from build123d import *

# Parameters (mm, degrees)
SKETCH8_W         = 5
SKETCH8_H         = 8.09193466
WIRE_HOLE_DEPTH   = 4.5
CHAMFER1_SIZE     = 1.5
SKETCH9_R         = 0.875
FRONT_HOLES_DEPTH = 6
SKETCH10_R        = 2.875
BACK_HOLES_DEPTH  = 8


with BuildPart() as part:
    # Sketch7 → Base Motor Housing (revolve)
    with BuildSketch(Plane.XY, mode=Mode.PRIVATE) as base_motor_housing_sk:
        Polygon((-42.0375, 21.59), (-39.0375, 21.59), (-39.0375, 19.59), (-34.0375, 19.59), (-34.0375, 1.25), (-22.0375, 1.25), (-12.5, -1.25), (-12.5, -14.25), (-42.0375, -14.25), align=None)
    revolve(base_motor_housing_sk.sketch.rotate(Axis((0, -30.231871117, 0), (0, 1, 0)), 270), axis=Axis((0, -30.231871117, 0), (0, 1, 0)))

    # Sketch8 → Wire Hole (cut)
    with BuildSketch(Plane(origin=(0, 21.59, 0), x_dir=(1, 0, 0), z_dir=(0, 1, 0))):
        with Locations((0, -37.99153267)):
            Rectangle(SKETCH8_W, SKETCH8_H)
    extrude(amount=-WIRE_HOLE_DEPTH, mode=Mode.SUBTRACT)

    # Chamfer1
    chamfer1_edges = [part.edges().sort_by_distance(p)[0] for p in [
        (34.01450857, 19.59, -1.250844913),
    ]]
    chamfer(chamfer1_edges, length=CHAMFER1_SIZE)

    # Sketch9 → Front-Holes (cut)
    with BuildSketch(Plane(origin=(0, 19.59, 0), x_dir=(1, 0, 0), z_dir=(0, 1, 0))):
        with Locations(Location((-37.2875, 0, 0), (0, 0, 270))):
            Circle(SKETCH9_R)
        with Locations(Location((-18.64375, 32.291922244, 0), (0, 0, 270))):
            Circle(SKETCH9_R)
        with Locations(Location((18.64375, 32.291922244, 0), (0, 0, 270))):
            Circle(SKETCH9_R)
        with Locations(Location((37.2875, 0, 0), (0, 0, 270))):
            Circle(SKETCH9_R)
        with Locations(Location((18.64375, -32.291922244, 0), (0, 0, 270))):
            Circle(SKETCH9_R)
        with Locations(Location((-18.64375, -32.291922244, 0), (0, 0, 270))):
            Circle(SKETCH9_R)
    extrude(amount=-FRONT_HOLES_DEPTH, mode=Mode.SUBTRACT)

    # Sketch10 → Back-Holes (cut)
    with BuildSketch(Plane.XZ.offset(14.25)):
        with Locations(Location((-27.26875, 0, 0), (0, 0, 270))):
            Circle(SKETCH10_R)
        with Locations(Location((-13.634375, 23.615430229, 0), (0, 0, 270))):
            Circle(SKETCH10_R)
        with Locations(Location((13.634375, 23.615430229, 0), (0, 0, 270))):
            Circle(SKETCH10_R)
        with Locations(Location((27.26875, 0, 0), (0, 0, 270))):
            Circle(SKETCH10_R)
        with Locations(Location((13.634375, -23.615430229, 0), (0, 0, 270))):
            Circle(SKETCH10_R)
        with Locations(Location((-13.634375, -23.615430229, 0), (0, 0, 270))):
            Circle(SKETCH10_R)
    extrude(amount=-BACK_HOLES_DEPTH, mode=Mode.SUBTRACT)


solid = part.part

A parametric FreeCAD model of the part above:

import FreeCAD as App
import Part
import Sketcher
from FreeCAD import Vector


def edges_at(feature, points):
    """Names of the edges that pass closest to the given points."""
    edges = feature.Shape.Edges
    near = lambda p: min(range(len(edges)), key=lambda i: edges[i].distToShape(Part.Vertex(*p))[0])
    return sorted({f"Edge{near(p) + 1}" for p in points})


def add_polygon(sketch, points):
    """Adds a closed chain of lines whose ends are joined by coincident constraints."""
    first, n = sketch.GeometryCount, len(points)
    for a, b in zip(points, points[1:] + points[:1]):
        sketch.addGeometry(Part.LineSegment(App.Vector(*a, 0), App.Vector(*b, 0)), False)
    for i in range(n):
        sketch.addConstraint(Sketcher.Constraint("Coincident", first + i, 2, first + (i + 1) % n, 1))

doc = App.newDocument("Part")
body = doc.addObject("PartDesign::Body", "Body")

sketch1 = body.newObject("Sketcher::SketchObject", "Sketch")
sketch1.AttachmentSupport = (doc.getObject("XY_Plane"), [""])
sketch1.MapMode = "FlatFace"
add_polygon(sketch1, [(-39.0375, 21.59), (-42.0375, 21.59), (-42.0375, -14.25), (-12.5, -14.25), (-12.5, -1.25), (-22.0375, 1.25), (-34.0375, 1.25), (-34.0375, 19.59), (-39.0375, 19.59)])
sketch1.addConstraint([
    Sketcher.Constraint("Horizontal", 0),
    Sketcher.Constraint("Vertical", 1),
    Sketcher.Constraint("Horizontal", 2),
    Sketcher.Constraint("Vertical", 3),
    Sketcher.Constraint("Horizontal", 5),
    Sketcher.Constraint("Vertical", 6),
    Sketcher.Constraint("Horizontal", 7),
    Sketcher.Constraint("Vertical", 8),
    Sketcher.Constraint("DistanceX", 0, 2, 0, 1, 3.0),
    Sketcher.Constraint("DistanceX", 5, 2, 5, 1, 12.0),
    Sketcher.Constraint("DistanceX", 7, 2, 7, 1, 5.0),
    Sketcher.Constraint("DistanceY", 3, 1, 3, 2, 13.0),
    Sketcher.Constraint("DistanceY", 8, 1, 8, 2, 2.0),
    Sketcher.Constraint("DistanceY", 1, 2, 1, 1, 35.84),
    Sketcher.Constraint("DistanceY", 6, 1, 6, 2, 18.34),
    Sketcher.Constraint("DistanceX", 2, 2, -1, 1, 12.5),
    Sketcher.Constraint("DistanceY", -1, 1, 0, 2, 21.59),
    Sketcher.Constraint("DistanceX", 2, 1, 2, 2, 29.5375),
])
revolution = body.newObject("PartDesign::Revolution", "Revolution")
revolution.Profile = sketch1
revolution.ReferenceAxis = (sketch1, ["V_Axis"])
revolution.Angle = 360

sketch2 = body.newObject("Sketcher::SketchObject", "Sketch001")
sketch2.AttachmentSupport = (doc.getObject("XZ_Plane"), [""])
sketch2.MapMode = "FlatFace"
sketch2.AttachmentOffset = App.Placement(Vector(0, 0, -21.59), App.Rotation())
add_polygon(sketch2, [(-2.5, 33.945565), (-2.5, 42.0375), (2.5, 42.0375), (2.5, 33.945565)])
sketch2.addConstraint([
    Sketcher.Constraint("Vertical", 0),
    Sketcher.Constraint("Horizontal", 1),
    Sketcher.Constraint("Vertical", 2),
    Sketcher.Constraint("Horizontal", 3),
    Sketcher.Constraint("DistanceX", 1, 1, 1, 2, 5.0),
    Sketcher.Constraint("DistanceX", 0, 2, -1, 1, 2.5),
    Sketcher.Constraint("DistanceY", -1, 1, 0, 2, 42.0375),
    Sketcher.Constraint("DistanceY", 0, 1, 0, 2, 8.091935),
])
pocket1 = body.newObject("PartDesign::Pocket", "Pocket")
pocket1.Profile = sketch2
pocket1.Length = 4.5
pocket1.Reversed = True
doc.recompute()

chamfer = body.newObject("PartDesign::Chamfer", "Chamfer")
chamfer.Base = (pocket1, edges_at(pocket1, [(34.015, 19.59, -1.251)]))
chamfer.Size = 1.5

sketch3 = body.newObject("Sketcher::SketchObject", "Sketch002")
sketch3.AttachmentSupport = (doc.getObject("XZ_Plane"), [""])
sketch3.MapMode = "FlatFace"
sketch3.AttachmentOffset = App.Placement(Vector(0, 0, -19.59), App.Rotation())
sketch3.addGeometry([
    Part.Circle(Vector(-37.2875, 0, 0), Vector(0, 0, 1), 0.875),
    Part.Circle(Vector(-18.64375, -32.291922, 0), Vector(0, 0, 1), 0.875),
    Part.Circle(Vector(18.64375, -32.291922, 0), Vector(0, 0, 1), 0.875),
    Part.Circle(Vector(37.2875, 0, 0), Vector(0, 0, 1), 0.875),
    Part.Circle(Vector(18.64375, 32.291922, 0), Vector(0, 0, 1), 0.875),
    Part.Circle(Vector(-18.64375, 32.291922, 0), Vector(0, 0, 1), 0.875),
], False)
sketch3.addConstraint([
    Sketcher.Constraint("Equal", 0, 1),
    Sketcher.Constraint("Equal", 1, 2),
    Sketcher.Constraint("Equal", 2, 3),
    Sketcher.Constraint("Equal", 3, 4),
    Sketcher.Constraint("Equal", 4, 5),
    Sketcher.Constraint("Symmetric", 0, 3, 3, 3, -1, 1),
    Sketcher.Constraint("Symmetric", 1, 3, 4, 3, -1, 1),
    Sketcher.Constraint("Symmetric", 2, 3, 5, 3, -1, 1),
    Sketcher.Constraint("Symmetric", 1, 3, 2, 3, -2),
    Sketcher.Constraint("PointOnObject", 0, 3, -1),
    Sketcher.Constraint("Diameter", 0, 1.75),
    Sketcher.Constraint("DistanceX", 0, 3, 3, 3, 74.575),
    Sketcher.Constraint("DistanceX", 1, 3, 2, 3, 37.2875),
    Sketcher.Constraint("DistanceY", 1, 3, -1, 1, 32.291922),
])
pocket2 = body.newObject("PartDesign::Pocket", "Pocket001")
pocket2.Profile = sketch3
pocket2.Length = 6
pocket2.Reversed = True

sketch4 = body.newObject("Sketcher::SketchObject", "Sketch003")
sketch4.AttachmentSupport = (doc.getObject("XZ_Plane"), [""])
sketch4.MapMode = "FlatFace"
sketch4.AttachmentOffset = App.Placement(Vector(0, 0, 14.25), App.Rotation())
sketch4.addGeometry([
    Part.Circle(Vector(-27.26875, 0, 0), Vector(0, 0, 1), 2.875),
    Part.Circle(Vector(-13.634375, 23.61543, 0), Vector(0, 0, 1), 2.875),
    Part.Circle(Vector(13.634375, 23.61543, 0), Vector(0, 0, 1), 2.875),
    Part.Circle(Vector(27.26875, 0, 0), Vector(0, 0, 1), 2.875),
    Part.Circle(Vector(13.634375, -23.61543, 0), Vector(0, 0, 1), 2.875),
    Part.Circle(Vector(-13.634375, -23.61543, 0), Vector(0, 0, 1), 2.875),
], False)
sketch4.addConstraint([
    Sketcher.Constraint("Equal", 0, 1),
    Sketcher.Constraint("Equal", 1, 2),
    Sketcher.Constraint("Equal", 2, 3),
    Sketcher.Constraint("Equal", 3, 4),
    Sketcher.Constraint("Equal", 4, 5),
    Sketcher.Constraint("Symmetric", 0, 3, 3, 3, -1, 1),
    Sketcher.Constraint("Symmetric", 1, 3, 4, 3, -1, 1),
    Sketcher.Constraint("Symmetric", 2, 3, 5, 3, -1, 1),
    Sketcher.Constraint("Symmetric", 1, 3, 2, 3, -2),
    Sketcher.Constraint("PointOnObject", 0, 3, -1),
    Sketcher.Constraint("Diameter", 0, 5.75),
    Sketcher.Constraint("DistanceX", 0, 3, 3, 3, 54.5375),
    Sketcher.Constraint("DistanceY", -1, 1, 1, 3, 23.61543),
    Sketcher.Constraint("DistanceX", 1, 3, 2, 3, 27.26875),
])
pocket3 = body.newObject("PartDesign::Pocket", "Pocket002")
pocket3.Profile = sketch4
pocket3.Length = 8

doc.recompute()
